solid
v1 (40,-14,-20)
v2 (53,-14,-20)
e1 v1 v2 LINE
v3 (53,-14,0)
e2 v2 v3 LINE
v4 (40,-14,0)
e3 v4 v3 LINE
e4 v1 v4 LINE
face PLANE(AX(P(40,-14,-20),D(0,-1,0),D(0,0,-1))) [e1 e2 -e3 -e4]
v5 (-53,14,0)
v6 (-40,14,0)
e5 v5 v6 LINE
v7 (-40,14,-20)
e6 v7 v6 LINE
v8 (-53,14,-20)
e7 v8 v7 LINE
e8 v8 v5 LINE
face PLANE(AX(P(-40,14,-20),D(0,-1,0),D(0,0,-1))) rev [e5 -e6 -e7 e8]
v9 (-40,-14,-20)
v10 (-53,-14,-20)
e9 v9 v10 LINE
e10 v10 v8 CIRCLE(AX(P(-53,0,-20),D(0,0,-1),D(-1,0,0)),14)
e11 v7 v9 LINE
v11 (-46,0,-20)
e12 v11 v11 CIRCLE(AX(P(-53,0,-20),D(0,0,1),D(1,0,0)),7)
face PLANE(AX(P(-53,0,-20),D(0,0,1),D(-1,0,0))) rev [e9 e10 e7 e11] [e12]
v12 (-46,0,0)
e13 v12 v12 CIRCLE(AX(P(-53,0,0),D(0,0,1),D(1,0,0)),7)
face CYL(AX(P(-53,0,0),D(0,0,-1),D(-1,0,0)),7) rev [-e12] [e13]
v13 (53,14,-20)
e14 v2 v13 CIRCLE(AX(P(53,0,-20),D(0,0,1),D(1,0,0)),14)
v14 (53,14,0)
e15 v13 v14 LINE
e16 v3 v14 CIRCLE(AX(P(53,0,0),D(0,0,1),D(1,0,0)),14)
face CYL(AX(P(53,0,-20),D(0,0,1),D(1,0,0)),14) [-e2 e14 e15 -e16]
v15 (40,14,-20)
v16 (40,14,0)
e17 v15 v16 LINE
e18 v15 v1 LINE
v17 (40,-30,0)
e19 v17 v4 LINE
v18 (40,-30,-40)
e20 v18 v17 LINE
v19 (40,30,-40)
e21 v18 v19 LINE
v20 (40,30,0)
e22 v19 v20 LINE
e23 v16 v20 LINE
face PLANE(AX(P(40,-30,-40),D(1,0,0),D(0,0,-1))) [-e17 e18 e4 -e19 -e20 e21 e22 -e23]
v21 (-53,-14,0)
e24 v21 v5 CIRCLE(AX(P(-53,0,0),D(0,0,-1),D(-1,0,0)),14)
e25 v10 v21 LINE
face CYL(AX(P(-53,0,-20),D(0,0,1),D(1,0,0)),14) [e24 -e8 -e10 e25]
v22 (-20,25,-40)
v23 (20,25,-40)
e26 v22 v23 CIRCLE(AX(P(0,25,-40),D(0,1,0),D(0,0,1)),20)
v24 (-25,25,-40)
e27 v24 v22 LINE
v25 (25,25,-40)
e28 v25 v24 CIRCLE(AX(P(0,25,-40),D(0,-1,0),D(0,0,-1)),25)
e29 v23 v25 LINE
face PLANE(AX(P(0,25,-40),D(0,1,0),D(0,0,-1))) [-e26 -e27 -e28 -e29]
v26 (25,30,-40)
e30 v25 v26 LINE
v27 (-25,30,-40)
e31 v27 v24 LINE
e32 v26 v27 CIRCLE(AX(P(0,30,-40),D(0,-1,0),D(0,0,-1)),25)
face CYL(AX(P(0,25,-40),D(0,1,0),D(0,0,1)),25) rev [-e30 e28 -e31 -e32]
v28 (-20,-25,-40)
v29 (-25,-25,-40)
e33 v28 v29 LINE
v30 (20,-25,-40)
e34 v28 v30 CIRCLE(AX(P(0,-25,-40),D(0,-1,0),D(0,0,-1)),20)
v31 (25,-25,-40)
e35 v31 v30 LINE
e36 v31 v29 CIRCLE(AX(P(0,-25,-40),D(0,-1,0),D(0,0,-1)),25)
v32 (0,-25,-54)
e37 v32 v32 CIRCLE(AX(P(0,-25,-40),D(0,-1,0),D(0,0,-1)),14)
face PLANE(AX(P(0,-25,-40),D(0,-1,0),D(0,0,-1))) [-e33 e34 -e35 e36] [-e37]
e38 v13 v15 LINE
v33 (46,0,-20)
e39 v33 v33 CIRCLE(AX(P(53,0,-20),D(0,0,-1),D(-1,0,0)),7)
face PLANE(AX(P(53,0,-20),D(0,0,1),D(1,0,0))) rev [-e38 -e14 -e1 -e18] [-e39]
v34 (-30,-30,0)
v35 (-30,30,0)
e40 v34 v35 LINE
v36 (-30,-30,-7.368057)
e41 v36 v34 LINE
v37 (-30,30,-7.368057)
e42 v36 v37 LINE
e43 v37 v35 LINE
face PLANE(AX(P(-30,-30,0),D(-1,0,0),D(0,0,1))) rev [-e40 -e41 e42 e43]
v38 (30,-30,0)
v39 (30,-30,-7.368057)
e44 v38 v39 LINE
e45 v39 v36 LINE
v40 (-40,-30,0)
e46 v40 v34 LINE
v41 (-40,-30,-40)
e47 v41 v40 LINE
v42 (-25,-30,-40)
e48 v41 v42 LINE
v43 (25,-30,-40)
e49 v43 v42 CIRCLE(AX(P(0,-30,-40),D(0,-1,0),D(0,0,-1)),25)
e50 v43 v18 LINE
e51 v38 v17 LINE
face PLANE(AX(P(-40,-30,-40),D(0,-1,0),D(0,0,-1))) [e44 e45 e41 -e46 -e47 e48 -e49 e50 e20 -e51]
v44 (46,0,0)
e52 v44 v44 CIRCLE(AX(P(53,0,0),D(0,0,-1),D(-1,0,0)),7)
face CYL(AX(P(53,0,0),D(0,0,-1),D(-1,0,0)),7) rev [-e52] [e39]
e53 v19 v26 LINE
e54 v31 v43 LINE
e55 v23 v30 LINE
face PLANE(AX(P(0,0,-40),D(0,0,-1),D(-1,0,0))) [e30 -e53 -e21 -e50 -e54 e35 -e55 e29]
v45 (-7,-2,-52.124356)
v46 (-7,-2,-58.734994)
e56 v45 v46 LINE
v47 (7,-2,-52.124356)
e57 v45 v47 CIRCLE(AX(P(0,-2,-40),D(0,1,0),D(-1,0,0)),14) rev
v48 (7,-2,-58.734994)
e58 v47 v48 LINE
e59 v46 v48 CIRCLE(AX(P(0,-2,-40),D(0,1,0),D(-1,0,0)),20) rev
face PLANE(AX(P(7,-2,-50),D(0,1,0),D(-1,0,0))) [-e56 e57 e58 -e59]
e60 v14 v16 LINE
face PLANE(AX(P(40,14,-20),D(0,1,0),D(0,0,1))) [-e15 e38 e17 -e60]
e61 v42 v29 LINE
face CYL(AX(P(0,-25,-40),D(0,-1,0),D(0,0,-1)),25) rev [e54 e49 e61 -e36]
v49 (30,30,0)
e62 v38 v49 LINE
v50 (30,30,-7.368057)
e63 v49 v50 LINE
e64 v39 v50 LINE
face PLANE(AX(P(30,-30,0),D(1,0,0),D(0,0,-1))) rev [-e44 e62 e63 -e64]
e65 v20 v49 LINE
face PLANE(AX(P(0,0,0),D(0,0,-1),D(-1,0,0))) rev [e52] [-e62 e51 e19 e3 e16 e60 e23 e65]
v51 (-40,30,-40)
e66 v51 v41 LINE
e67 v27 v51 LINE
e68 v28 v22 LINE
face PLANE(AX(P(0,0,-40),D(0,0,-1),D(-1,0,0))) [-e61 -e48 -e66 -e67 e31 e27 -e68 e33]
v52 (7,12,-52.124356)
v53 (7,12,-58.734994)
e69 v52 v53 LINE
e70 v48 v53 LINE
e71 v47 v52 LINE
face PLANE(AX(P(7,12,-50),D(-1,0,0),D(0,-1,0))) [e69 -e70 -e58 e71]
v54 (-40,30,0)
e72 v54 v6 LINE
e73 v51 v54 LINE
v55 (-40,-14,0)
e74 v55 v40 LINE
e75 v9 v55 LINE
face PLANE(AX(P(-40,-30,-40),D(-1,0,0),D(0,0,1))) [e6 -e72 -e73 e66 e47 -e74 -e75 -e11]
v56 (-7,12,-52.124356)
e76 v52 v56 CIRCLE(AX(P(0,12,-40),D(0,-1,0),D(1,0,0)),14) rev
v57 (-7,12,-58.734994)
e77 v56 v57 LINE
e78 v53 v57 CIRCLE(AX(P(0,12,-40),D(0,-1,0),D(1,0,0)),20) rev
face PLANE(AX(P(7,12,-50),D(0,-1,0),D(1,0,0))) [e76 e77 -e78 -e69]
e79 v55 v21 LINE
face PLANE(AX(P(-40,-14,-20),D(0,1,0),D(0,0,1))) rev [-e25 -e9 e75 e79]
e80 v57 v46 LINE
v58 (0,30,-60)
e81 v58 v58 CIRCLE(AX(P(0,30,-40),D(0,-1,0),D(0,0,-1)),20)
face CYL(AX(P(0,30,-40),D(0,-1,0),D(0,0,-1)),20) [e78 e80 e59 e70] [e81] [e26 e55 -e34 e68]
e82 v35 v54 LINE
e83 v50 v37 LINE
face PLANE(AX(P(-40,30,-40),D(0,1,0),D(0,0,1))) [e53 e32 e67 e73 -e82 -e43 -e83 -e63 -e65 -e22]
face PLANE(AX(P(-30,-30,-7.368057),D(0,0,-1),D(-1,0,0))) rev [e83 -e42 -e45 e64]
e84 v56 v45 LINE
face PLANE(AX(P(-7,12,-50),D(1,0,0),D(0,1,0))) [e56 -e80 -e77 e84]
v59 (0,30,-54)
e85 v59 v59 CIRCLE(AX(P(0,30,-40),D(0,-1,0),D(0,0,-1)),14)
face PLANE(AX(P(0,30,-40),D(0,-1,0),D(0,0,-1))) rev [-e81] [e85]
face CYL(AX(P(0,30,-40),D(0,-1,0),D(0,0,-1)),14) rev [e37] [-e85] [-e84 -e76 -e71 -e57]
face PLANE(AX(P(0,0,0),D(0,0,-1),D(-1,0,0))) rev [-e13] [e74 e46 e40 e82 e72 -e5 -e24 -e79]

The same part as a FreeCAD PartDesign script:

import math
import FreeCAD as App
import Part
import Sketcher

doc = App.newDocument("Part")
body = doc.addObject("PartDesign::Body", "Body")

sketch1 = body.newObject("Sketcher::SketchObject", "Sketch")
sketch1.AttachmentSupport = (doc.getObject("XY_Plane"), [""])
sketch1.MapMode = "FlatFace"
sketch1.addGeometry([
    Part.LineSegment(App.Vector(-40, 30, 0), App.Vector(-40, -30, 0)),
    Part.LineSegment(App.Vector(-40, -30, 0), App.Vector(40, -30, 0)),
    Part.LineSegment(App.Vector(40, -30, 0), App.Vector(40, 30, 0)),
    Part.LineSegment(App.Vector(40, 30, 0), App.Vector(-40, 30, 0)),
], False)
sketch1.addConstraint([
    Sketcher.Constraint("Coincident", 0, 2, 1, 1),
    Sketcher.Constraint("Coincident", 1, 2, 2, 1),
    Sketcher.Constraint("Coincident", 2, 2, 3, 1),
    Sketcher.Constraint("Coincident", 3, 2, 0, 1),
    Sketcher.Constraint("Vertical", 0),
    Sketcher.Constraint("Horizontal", 1),
    Sketcher.Constraint("Vertical", 2),
    Sketcher.Constraint("Horizontal", 3),
    Sketcher.Constraint("Symmetric", 0, 2, 2, 2, -1, 1),
    Sketcher.Constraint("DistanceX", 1, 1, 1, 2, 80.0),
    Sketcher.Constraint("DistanceY", 0, 2, 0, 1, 60.0),
])
pad1 = body.newObject("PartDesign::Pad", "Pad")
pad1.Profile = sketch1
pad1.Length = 40
pad1.Reversed = True

sketch2 = body.newObject("Sketcher::SketchObject", "Sketch001")
sketch2.AttachmentSupport = (doc.getObject("XZ_Plane"), [""])
sketch2.MapMode = "FlatFace"
sketch2.AttachmentOffset = App.Placement(App.Vector(0, 0, -30), App.Rotation())
sketch2.addGeometry([
    Part.LineSegment(App.Vector(-30, -7, 0), App.Vector(-30, 0, 0)),
    Part.LineSegment(App.Vector(-30, 0, 0), App.Vector(30, 0, 0)),
    Part.LineSegment(App.Vector(30, 0, 0), App.Vector(30, -7, 0)),
    Part.LineSegment(App.Vector(30, -7, 0), App.Vector(-30, -7, 0)),
], False)
sketch2.addConstraint([
    Sketcher.Constraint("Coincident", 0, 2, 1, 1),
    Sketcher.Constraint("Coincident", 1, 2, 2, 1),
    Sketcher.Constraint("Coincident", 2, 2, 3, 1),
    Sketcher.Constraint("Coincident", 3, 2, 0, 1),
    Sketcher.Constraint("Vertical", 0),
    Sketcher.Constraint("Horizontal", 1),
    Sketcher.Constraint("Vertical", 2),
    Sketcher.Constraint("Horizontal", 3),
    Sketcher.Constraint("Symmetric", 0, 2, 1, 2, -1, 1),
    Sketcher.Constraint("DistanceX", 1, 1, 1, 2, 60.0),
    Sketcher.Constraint("DistanceY", 0, 1, 0, 2, 7.368057),
])
pocket1 = body.newObject("PartDesign::Pocket", "Pocket")
pocket1.Profile = sketch2
pocket1.Type = "ThroughAll"
pocket1.Reversed = True

sketch3 = body.newObject("Sketcher::SketchObject", "Sketch002")
sketch3.AttachmentSupport = (doc.getObject("XY_Plane"), [""])
sketch3.MapMode = "FlatFace"
sketch3.addGeometry([
    Part.LineSegment(App.Vector(40, -14, 0), App.Vector(53, -14, 0)),
    Part.ArcOfCircle(Part.Circle(App.Vector(53, 0, 0), App.Vector(0, 0, 1), 14), math.radians(-90), math.radians(90)),
    Part.LineSegment(App.Vector(53, 14, 0), App.Vector(40, 14, 0)),
    Part.LineSegment(App.Vector(40, 14, 0), App.Vector(40, -14, 0)),
], False)
sketch3.addConstraint([
    Sketcher.Constraint("Tangent", 0, 2, 1, 1),
    Sketcher.Constraint("Tangent", 1, 2, 2, 1),
    Sketcher.Constraint("Coincident", 2, 2, 3, 1),
    Sketcher.Constraint("Coincident", 3, 2, 0, 1),
    Sketcher.Constraint("Horizontal", 0),
    Sketcher.Constraint("Horizontal", 2),
    Sketcher.Constraint("Vertical", 3),
    Sketcher.Constraint("PointOnObject", 1, 3, -1),
    Sketcher.Constraint("Radius", 1, 14.0),
    Sketcher.Constraint("DistanceX", 0, 1, 0, 2, 13.0),
    Sketcher.Constraint("DistanceX", -1, 1, 1, 3, 53.0),
])
pad2 = body.newObject("PartDesign::Pad", "Pad001")
pad2.Profile = sketch3
pad2.Length = 20
pad2.Reversed = True

sketch4 = body.newObject("Sketcher::SketchObject", "Sketch003")
sketch4.AttachmentSupport = (doc.getObject("XY_Plane"), [""])
sketch4.MapMode = "FlatFace"
sketch4.AttachmentOffset = App.Placement(App.Vector(0, 0, -20), App.Rotation())
sketch4.addGeometry(Part.Circle(App.Vector(53, 0, 0), App.Vector(0, 0, 1), 7), False)
sketch4.addConstraint([
    Sketcher.Constraint("PointOnObject", 0, 3, -1),
    Sketcher.Constraint("Diameter", 0, 14.0),
    Sketcher.Constraint("DistanceX", -1, 1, 0, 3, 53.0),
])
pocket2 = body.newObject("PartDesign::Pocket", "Pocket001")
pocket2.Profile = sketch4
pocket2.Type = "ThroughAll"
pocket2.Reversed = True
doc.recompute()

mirrored = body.newObject("PartDesign::Mirrored", "Mirrored")
mirrored.Originals = [pad2, pocket2]
mirrored.MirrorPlane = (doc.getObject("YZ_Plane"), [""])
body.Tip = mirrored

sketch5 = body.newObject("Sketcher::SketchObject", "Sketch004")
sketch5.AttachmentSupport = (doc.getObject("XZ_Plane"), [""])
sketch5.MapMode = "FlatFace"
sketch5.AttachmentOffset = App.Placement(App.Vector(0, 0, 30), App.Rotation())
sketch5.addGeometry(Part.Circle(App.Vector(0, -40, 0), App.Vector(0, 0, 1), 25), False)
sketch5.addConstraint([
    Sketcher.Constraint("PointOnObject", 0, 3, -2),
    Sketcher.Constraint("Diameter", 0, 50.0),
    Sketcher.Constraint("DistanceY", 0, 3, -1, 1, 40.0),
])
pocket3 = body.newObject("PartDesign::Pocket", "Pocket002")
pocket3.Profile = sketch5
pocket3.Length = 5
doc.recompute()

mirrored2 = body.newObject("PartDesign::Mirrored", "Mirrored001")
mirrored2.Originals = [pocket3]
mirrored2.MirrorPlane = (doc.getObject("XZ_Plane"), [""])
body.Tip = mirrored2

sketch6 = body.newObject("Sketcher::SketchObject", "Sketch005")
sketch6.AttachmentSupport = (doc.getObject("XZ_Plane"), [""])
sketch6.MapMode = "FlatFace"
sketch6.AttachmentOffset = App.Placement(App.Vector(0, 0, 25), App.Rotation())
sketch6.addGeometry(Part.Circle(App.Vector(0, -40, 0), App.Vector(0, 0, 1), 20), False)
sketch6.addConstraint([
    Sketcher.Constraint("PointOnObject", 0, 3, -2),
    Sketcher.Constraint("Diameter", 0, 40.0),
    Sketcher.Constraint("DistanceY", 0, 3, -1, 1, 40.0),
])
pad3 = body.newObject("PartDesign::Pad", "Pad002")
pad3.Profile = sketch6
pad3.Length = 55
pad3.Reversed = True

sketch7 = body.newObject("Sketcher::SketchObject", "Sketch006")
sketch7.AttachmentSupport = (doc.getObject("XZ_Plane"), [""])
sketch7.MapMode = "FlatFace"
sketch7.AttachmentOffset = App.Placement(App.Vector(0, 0, 25), App.Rotation())
sketch7.addGeometry(Part.Circle(App.Vector(0, -40, 0), App.Vector(0, 0, 1), 14), False)
sketch7.addConstraint([
    Sketcher.Constraint("PointOnObject", 0, 3, -2),
    Sketcher.Constraint("Diameter", 0, 28.0),
    Sketcher.Constraint("DistanceY", 0, 3, -1, 1, 40.0),
])
pocket4 = body.newObject("PartDesign::Pocket", "Pocket003")
pocket4.Profile = sketch7
pocket4.Type = "ThroughAll"

sketch8 = body.newObject("Sketcher::SketchObject", "Sketch007")
sketch8.AttachmentSupport = (doc.getObject("XY_Plane"), [""])
sketch8.MapMode = "FlatFace"
sketch8.AttachmentOffset = App.Placement(App.Vector(0, 0, -60), App.Rotation())
sketch8.addGeometry([
    Part.LineSegment(App.Vector(-7, 12, 0), App.Vector(-7, -2, 0)),
    Part.LineSegment(App.Vector(-7, -2, 0), App.Vector(7, -2, 0)),
    Part.LineSegment(App.Vector(7, -2, 0), App.Vector(7, 12, 0)),
    Part.LineSegment(App.Vector(7, 12, 0), App.Vector(-7, 12, 0)),
], False)
sketch8.addConstraint([
    Sketcher.Constraint("Coincident", 0, 2, 1, 1),
    Sketcher.Constraint("Coincident", 1, 2, 2, 1),
    Sketcher.Constraint("Coincident", 2, 2, 3, 1),
    Sketcher.Constraint("Coincident", 3, 2, 0, 1),
    Sketcher.Constraint("Vertical", 0),
    Sketcher.Constraint("Horizontal", 1),
    Sketcher.Constraint("Vertical", 2),
    Sketcher.Constraint("Horizontal", 3),
    Sketcher.Constraint("Equal", 3, 0),
    Sketcher.Constraint("DistanceX", 1, 1, 1, 2, 14.0),
    Sketcher.Constraint("DistanceX", 0, 2, -1, 1, 7.0),
    Sketcher.Constraint("DistanceY", 0, 2, -1, 1, 2.0),
])
pocket5 = body.newObject("PartDesign::Pocket", "Pocket004")
pocket5.Profile = sketch8
pocket5.Length = 10
pocket5.Reversed = True

doc.recompute()
